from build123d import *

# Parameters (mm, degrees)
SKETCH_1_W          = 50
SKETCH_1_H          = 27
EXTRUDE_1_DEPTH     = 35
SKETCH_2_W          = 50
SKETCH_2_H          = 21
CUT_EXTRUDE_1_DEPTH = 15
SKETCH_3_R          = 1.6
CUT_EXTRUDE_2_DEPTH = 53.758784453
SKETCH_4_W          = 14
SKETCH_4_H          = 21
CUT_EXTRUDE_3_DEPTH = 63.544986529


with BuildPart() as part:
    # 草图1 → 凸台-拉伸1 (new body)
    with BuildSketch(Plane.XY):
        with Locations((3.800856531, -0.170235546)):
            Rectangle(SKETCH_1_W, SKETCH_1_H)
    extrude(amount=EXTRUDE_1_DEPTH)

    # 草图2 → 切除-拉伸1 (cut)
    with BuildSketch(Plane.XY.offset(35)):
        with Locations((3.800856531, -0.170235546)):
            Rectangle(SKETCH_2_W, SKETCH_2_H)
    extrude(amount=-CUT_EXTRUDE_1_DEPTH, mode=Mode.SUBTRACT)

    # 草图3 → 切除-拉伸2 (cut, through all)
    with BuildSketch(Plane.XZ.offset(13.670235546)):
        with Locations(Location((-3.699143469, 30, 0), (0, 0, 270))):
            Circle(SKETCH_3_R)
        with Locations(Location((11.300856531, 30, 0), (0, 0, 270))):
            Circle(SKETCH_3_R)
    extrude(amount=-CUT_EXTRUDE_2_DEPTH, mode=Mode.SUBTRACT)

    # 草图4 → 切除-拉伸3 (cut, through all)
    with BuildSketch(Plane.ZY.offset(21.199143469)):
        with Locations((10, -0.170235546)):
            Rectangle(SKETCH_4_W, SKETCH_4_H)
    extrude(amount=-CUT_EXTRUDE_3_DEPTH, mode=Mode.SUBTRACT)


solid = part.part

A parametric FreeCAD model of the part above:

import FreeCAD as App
import Part
import Sketcher
from FreeCAD import Vector

doc = App.newDocument("Part")
body = doc.addObject("PartDesign::Body", "Body")

# Sketch on XY plane
sketch1 = body.newObject("Sketcher::SketchObject", "Sketch")
sketch1.AttachmentSupport = (doc.getObject("XY_Plane"), [""])
sketch1.MapMode = "FlatFace"
sketch1.addGeometry([
    Part.LineSegment(Vector(-21, 13, 0), Vector(-21, -14, 0)),
    Part.LineSegment(Vector(-21, -14, 0), Vector(29, -14, 0)),
    Part.LineSegment(Vector(29, -14, 0), Vector(29, 13, 0)),
    Part.LineSegment(Vector(29, 13, 0), Vector(-21, 13, 0)),
], False)
sketch1.addConstraint([
    Sketcher.Constraint("Coincident", 0, 2, 1, 1),
    Sketcher.Constraint("Coincident", 1, 2, 2, 1),
    Sketcher.Constraint("Coincident", 2, 2, 3, 1),
    Sketcher.Constraint("Coincident", 3, 2, 0, 1),
    Sketcher.Constraint("Vertical", 0),
    Sketcher.Constraint("Horizontal", 1),
    Sketcher.Constraint("Vertical", 2),
    Sketcher.Constraint("Horizontal", 3),
    Sketcher.Constraint("DistanceX", 1, 1, 1, 2, 50.0),
    Sketcher.Constraint("DistanceY", 0, 2, 0, 1, 27.0),
    Sketcher.Constraint("DistanceX", 0, 2, -1, 1, 21.199143),
    Sketcher.Constraint("DistanceY", 0, 2, -1, 1, 13.670236),
])
pad1 = body.newObject("PartDesign::Pad", "Pad")
pad1.Profile = sketch1
pad1.Length = 35

# Sketch on XY plane
sketch2 = body.newObject("Sketcher::SketchObject", "Sketch001")
sketch2.AttachmentSupport = (doc.getObject("XY_Plane"), [""])
sketch2.MapMode = "FlatFace"
sketch2.AttachmentOffset = App.Placement(Vector(0, 0, 35), App.Rotation())
sketch2.addGeometry([
    Part.LineSegment(Vector(-21, 10, 0), Vector(-21, -11, 0)),
    Part.LineSegment(Vector(-21, -11, 0), Vector(29, -11, 0)),
    Part.LineSegment(Vector(29, -11, 0), Vector(29, 10, 0)),
    Part.LineSegment(Vector(29, 10, 0), Vector(-21, 10, 0)),
], False)
sketch2.addConstraint([
    Sketcher.Constraint("Coincident", 0, 2, 1, 1),
    Sketcher.Constraint("Coincident", 1, 2, 2, 1),
    Sketcher.Constraint("Coincident", 2, 2, 3, 1),
    Sketcher.Constraint("Coincident", 3, 2, 0, 1),
    Sketcher.Constraint("Vertical", 0),
    Sketcher.Constraint("Horizontal", 1),
    Sketcher.Constraint("Vertical", 2),
    Sketcher.Constraint("Horizontal", 3),
    Sketcher.Constraint("DistanceX", 1, 1, 1, 2, 50.0),
    Sketcher.Constraint("DistanceY", 0, 2, 0, 1, 21.0),
    Sketcher.Constraint("DistanceX", 0, 2, -1, 1, 21.199143),
    Sketcher.Constraint("DistanceY", 0, 2, -1, 1, 10.670236),
])
pocket1 = body.newObject("PartDesign::Pocket", "Pocket")
pocket1.Profile = sketch2
pocket1.Length = 15

# Sketch on XZ plane
sketch3 = body.newObject("Sketcher::SketchObject", "Sketch002")
sketch3.AttachmentSupport = (doc.getObject("XZ_Plane"), [""])
sketch3.MapMode = "FlatFace"
sketch3.AttachmentOffset = App.Placement(Vector(0, 0, 13.670236), App.Rotation())
sketch3.addGeometry([
    Part.Circle(Vector(-3.7, 30, 0), Vector(0, 0, 1), 1.6),
    Part.Circle(Vector(11.3, 30, 0), Vector(0, 0, 1), 1.6),
], False)
sketch3.addConstraint([
    Sketcher.Constraint("Equal", 0, 1),
    Sketcher.Constraint("Horizontal", 0, 3, 1, 3),
    Sketcher.Constraint("Diameter", 0, 3.2),
    Sketcher.Constraint("DistanceY", -1, 1, 0, 3, 30.0),
    Sketcher.Constraint("DistanceX", 0, 3, 1, 3, 15.0),
    Sketcher.Constraint("DistanceX", 0, 3, -1, 1, 3.699143),
])
pocket2 = body.newObject("PartDesign::Pocket", "Pocket001")
pocket2.Profile = sketch3
pocket2.Type = "ThroughAll"

# Sketch on YZ plane
sketch4 = body.newObject("Sketcher::SketchObject", "Sketch003")
sketch4.AttachmentSupport = (doc.getObject("YZ_Plane"), [""])
sketch4.MapMode = "FlatFace"
sketch4.AttachmentOffset = App.Placement(Vector(0, 0, -21.199143), App.Rotation())
sketch4.addGeometry([
    Part.LineSegment(Vector(10, 3, 0), Vector(-11, 3, 0)),
    Part.LineSegment(Vector(-11, 3, 0), Vector(-11, 17, 0)),
    Part.LineSegment(Vector(-11, 17, 0), Vector(10, 17, 0)),
    Part.LineSegment(Vector(10, 17, 0), Vector(10, 3, 0)),
], False)
sketch4.addConstraint([
    Sketcher.Constraint("Coincident", 0, 2, 1, 1),
    Sketcher.Constraint("Coincident", 1, 2, 2, 1),
    Sketcher.Constraint("Coincident", 2, 2, 3, 1),
    Sketcher.Constraint("Coincident", 3, 2, 0, 1),
    Sketcher.Constraint("Horizontal", 0),
    Sketcher.Constraint("Vertical", 1),
    Sketcher.Constraint("Horizontal", 2),
    Sketcher.Constraint("Vertical", 3),
    Sketcher.Constraint("DistanceX", 0, 2, 0, 1, 21.0),
    Sketcher.Constraint("DistanceY", 1, 1, 1, 2, 14.0),
    Sketcher.Constraint("DistanceY", -1, 1, 0, 2, 3.0),
    Sketcher.Constraint("DistanceX", 0, 2, -1, 1, 10.670236),
])
pocket3 = body.newObject("PartDesign::Pocket", "Pocket002")
pocket3.Profile = sketch4
pocket3.Type = "ThroughAll"
pocket3.Reversed = True

doc.recompute()
